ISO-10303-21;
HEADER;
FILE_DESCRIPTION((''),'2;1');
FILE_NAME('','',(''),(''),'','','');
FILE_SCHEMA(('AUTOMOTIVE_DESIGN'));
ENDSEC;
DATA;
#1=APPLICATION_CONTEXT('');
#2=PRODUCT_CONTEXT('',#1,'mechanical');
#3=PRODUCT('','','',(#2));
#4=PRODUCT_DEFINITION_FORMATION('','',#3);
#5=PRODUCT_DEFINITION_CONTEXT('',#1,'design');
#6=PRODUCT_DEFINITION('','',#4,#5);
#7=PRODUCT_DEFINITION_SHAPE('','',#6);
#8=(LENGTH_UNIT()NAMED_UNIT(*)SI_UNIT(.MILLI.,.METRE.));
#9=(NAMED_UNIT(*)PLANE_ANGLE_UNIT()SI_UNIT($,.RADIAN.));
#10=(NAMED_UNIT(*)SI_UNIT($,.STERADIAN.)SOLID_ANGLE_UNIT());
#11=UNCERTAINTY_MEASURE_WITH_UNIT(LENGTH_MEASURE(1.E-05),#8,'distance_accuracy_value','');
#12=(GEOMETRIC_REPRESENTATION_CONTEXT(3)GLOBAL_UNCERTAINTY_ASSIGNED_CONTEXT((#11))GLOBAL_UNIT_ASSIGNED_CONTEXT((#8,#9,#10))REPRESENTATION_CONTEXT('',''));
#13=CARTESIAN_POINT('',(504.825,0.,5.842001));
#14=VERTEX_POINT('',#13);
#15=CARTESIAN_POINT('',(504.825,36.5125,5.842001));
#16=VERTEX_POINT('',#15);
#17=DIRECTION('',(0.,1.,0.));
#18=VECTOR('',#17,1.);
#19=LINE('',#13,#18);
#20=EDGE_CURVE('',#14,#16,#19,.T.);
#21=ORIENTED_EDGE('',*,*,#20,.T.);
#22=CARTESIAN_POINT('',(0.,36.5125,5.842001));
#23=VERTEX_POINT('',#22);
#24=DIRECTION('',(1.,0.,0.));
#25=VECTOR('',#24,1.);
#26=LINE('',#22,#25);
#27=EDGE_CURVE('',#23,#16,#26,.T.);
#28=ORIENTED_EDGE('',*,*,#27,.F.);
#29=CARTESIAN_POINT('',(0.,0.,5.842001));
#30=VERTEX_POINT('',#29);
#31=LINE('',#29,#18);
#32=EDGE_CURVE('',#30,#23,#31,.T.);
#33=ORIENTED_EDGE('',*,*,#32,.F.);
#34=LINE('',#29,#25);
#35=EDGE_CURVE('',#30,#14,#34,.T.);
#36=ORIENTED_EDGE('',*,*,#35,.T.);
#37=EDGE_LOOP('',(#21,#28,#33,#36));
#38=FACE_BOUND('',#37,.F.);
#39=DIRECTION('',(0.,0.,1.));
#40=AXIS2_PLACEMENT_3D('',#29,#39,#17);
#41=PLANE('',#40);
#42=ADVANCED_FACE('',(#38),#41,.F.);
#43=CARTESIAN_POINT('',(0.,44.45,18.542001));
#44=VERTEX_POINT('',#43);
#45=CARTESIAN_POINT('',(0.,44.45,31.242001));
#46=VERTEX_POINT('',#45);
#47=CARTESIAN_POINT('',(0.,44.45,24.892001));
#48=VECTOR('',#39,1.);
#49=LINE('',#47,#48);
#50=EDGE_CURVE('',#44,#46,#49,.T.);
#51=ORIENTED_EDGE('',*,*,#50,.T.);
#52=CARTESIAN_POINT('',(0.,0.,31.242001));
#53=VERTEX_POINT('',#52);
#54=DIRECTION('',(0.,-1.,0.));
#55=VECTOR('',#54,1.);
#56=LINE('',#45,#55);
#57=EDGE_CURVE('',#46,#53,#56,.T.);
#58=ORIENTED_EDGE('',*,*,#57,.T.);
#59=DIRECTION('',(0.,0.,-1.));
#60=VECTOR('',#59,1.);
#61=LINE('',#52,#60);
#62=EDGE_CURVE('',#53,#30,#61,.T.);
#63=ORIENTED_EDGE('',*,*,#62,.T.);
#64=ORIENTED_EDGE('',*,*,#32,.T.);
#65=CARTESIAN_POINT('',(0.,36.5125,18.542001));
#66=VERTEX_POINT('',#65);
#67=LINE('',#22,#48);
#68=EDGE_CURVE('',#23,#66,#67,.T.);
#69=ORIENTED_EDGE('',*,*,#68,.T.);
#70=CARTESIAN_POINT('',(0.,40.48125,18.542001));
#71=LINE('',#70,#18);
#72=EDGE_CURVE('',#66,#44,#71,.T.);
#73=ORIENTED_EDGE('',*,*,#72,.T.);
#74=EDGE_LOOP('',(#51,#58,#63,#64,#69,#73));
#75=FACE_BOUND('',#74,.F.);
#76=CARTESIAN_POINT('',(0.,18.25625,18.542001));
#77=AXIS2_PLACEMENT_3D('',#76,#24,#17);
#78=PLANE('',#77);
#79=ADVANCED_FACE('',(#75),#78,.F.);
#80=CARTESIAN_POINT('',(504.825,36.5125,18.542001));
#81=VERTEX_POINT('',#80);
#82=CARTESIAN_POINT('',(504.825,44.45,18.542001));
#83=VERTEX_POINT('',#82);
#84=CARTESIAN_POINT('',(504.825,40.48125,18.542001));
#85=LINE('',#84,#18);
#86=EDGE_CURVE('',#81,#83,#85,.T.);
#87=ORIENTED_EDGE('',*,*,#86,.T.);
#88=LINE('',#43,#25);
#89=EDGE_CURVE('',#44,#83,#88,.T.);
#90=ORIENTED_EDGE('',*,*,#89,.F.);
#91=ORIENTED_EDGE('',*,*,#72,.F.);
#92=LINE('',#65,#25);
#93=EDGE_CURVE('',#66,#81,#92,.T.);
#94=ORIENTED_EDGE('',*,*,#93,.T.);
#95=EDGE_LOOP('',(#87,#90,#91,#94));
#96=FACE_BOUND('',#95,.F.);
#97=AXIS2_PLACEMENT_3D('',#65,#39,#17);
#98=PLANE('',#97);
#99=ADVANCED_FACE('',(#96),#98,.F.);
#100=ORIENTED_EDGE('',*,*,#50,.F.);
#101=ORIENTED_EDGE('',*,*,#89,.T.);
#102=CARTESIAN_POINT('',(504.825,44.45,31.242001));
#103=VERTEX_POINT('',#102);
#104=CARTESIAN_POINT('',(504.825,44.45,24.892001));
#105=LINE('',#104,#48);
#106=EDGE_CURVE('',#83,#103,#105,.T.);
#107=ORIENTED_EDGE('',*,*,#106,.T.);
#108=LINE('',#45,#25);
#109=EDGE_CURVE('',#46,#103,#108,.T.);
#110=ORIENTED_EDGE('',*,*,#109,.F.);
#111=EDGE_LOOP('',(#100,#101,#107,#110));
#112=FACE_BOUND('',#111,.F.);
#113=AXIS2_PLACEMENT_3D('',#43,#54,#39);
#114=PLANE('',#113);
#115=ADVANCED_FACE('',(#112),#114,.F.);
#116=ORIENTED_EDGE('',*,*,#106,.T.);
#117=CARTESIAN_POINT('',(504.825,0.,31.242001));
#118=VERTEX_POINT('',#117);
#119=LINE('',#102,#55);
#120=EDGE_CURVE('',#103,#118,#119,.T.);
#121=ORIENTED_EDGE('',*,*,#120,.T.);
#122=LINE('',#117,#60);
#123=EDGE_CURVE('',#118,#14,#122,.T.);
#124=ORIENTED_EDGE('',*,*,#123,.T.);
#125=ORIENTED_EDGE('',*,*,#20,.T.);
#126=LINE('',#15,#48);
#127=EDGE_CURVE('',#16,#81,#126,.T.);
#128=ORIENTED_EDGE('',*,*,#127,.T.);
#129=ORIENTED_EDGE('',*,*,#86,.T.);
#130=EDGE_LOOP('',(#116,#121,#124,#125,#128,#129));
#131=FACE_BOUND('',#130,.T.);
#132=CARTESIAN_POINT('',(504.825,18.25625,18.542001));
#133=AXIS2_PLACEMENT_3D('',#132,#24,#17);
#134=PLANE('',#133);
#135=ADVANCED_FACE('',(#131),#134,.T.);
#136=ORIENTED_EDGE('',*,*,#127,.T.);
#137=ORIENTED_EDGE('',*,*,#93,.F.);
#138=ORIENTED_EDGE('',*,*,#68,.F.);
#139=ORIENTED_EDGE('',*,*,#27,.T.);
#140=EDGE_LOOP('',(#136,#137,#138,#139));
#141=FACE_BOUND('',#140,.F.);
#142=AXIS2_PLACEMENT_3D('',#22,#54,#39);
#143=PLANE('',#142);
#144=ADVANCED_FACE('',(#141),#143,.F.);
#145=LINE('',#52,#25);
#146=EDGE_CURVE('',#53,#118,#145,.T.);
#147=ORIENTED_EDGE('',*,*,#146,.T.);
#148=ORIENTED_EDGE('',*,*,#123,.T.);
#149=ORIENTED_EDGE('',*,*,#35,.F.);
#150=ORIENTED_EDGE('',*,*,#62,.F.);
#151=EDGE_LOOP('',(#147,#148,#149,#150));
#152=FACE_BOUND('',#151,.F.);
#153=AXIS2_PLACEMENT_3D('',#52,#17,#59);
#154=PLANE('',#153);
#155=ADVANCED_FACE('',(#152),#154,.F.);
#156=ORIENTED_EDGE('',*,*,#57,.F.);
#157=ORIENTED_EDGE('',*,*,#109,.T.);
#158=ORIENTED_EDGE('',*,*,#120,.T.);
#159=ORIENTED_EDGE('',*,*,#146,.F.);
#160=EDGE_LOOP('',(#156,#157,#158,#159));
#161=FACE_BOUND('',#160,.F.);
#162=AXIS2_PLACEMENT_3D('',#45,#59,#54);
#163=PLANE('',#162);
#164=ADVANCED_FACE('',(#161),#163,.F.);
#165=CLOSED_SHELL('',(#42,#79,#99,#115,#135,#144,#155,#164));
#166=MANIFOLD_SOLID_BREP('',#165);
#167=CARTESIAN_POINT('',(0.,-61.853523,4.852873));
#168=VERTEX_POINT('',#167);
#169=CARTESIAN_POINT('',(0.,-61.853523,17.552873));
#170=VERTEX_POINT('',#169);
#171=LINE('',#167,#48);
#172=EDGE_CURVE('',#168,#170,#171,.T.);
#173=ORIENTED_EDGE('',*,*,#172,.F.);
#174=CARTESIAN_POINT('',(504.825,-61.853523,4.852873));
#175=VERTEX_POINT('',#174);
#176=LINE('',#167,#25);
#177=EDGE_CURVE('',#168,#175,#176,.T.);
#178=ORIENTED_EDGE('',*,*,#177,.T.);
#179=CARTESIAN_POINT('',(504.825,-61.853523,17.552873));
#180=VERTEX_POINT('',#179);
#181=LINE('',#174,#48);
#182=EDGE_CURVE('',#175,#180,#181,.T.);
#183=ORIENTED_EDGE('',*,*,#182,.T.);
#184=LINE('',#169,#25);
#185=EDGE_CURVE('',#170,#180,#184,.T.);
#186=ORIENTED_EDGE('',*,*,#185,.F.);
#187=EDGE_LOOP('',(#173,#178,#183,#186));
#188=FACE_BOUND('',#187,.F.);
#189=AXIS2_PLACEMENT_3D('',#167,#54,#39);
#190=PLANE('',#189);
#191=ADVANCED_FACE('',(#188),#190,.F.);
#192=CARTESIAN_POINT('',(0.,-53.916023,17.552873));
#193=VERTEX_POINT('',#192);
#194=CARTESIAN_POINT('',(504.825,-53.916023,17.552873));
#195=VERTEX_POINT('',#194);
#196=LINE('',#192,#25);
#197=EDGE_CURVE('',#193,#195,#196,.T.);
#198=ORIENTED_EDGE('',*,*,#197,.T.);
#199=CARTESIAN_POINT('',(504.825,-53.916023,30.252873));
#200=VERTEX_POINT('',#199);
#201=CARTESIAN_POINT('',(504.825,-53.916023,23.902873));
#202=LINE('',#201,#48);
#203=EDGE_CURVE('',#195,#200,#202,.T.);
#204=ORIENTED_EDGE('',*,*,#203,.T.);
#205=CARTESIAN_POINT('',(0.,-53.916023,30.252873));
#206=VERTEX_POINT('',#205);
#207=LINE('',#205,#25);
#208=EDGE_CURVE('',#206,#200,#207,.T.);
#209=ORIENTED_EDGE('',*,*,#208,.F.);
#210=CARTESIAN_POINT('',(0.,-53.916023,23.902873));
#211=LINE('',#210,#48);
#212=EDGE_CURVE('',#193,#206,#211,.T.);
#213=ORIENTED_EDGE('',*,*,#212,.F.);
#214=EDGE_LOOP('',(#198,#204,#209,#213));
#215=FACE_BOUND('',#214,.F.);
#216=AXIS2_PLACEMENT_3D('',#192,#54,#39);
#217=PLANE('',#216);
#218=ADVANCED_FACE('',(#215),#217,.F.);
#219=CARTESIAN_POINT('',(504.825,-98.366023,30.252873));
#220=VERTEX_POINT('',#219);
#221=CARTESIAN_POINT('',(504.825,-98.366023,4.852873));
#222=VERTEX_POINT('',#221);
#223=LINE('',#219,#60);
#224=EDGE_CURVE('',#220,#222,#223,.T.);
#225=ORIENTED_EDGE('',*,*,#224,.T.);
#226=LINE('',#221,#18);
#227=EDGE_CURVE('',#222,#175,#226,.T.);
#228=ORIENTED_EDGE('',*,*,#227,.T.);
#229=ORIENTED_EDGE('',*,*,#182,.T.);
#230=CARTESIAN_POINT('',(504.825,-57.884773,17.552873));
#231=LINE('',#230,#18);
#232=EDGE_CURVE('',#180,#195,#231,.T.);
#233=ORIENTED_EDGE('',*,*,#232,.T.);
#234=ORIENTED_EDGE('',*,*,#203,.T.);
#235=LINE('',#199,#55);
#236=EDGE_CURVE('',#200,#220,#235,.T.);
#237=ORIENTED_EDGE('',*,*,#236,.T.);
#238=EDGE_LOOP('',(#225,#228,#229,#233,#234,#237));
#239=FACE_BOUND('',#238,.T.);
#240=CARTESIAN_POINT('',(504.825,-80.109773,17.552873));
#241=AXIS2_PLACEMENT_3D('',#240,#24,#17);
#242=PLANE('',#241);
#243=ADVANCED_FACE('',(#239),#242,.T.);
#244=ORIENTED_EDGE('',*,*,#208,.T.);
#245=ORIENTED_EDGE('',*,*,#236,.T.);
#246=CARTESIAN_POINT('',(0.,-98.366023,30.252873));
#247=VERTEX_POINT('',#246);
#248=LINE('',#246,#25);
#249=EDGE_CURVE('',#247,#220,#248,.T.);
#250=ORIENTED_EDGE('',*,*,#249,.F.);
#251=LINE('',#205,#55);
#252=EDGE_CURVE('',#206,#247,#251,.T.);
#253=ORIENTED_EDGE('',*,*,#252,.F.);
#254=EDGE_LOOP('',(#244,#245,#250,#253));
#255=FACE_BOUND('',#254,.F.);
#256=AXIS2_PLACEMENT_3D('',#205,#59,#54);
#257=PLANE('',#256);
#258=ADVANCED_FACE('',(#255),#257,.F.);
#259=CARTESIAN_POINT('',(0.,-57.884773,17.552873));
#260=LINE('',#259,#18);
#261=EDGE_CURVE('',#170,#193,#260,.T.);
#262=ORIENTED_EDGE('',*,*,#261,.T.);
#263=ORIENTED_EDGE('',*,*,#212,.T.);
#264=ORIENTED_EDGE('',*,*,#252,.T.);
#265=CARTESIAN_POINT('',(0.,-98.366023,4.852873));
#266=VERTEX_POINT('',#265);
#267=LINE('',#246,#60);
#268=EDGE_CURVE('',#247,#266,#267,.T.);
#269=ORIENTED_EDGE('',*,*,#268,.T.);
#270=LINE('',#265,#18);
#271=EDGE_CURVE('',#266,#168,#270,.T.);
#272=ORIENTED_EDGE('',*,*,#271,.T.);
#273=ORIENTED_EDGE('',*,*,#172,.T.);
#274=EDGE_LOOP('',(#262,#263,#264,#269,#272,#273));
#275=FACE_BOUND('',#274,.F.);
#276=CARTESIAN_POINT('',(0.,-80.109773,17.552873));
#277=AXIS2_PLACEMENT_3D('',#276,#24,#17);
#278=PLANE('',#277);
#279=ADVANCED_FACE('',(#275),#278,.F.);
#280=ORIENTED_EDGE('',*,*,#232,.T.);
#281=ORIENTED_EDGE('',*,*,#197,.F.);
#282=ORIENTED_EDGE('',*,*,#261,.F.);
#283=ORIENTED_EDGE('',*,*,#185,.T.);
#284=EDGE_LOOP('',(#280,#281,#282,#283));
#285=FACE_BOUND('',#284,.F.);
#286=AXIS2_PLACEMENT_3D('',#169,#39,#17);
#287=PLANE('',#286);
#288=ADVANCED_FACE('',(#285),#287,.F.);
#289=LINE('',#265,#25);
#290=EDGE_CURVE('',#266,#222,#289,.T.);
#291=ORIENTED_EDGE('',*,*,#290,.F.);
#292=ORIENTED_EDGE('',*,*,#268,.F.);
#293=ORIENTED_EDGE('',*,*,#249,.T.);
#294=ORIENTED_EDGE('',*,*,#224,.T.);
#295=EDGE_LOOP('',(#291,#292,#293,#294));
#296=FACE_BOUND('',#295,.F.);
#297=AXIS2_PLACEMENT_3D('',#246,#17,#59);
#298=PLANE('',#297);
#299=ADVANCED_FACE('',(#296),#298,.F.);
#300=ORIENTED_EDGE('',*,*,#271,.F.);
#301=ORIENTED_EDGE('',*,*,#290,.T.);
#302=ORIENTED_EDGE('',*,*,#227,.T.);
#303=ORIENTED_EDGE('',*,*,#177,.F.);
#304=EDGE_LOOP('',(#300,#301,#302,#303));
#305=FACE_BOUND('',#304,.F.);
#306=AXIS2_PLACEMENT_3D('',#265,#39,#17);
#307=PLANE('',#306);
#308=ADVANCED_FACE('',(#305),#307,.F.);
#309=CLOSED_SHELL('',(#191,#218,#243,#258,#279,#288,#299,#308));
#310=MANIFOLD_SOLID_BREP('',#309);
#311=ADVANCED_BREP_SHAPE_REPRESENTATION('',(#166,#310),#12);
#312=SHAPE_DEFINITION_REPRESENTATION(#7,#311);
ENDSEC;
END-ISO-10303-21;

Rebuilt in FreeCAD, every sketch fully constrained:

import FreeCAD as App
import Part
import Sketcher
from FreeCAD import Vector
Q = App.Units.Quantity

doc = App.newDocument("Part")
body = doc.addObject("PartDesign::Body", "Body")
body.AllowCompound = True

# Sketch on YZ plane
sketch1 = body.newObject("Sketcher::SketchObject", "Sketch")
sketch1.AttachmentSupport = (doc.getObject("YZ_Plane"), [""])
sketch1.MapMode = "FlatFace"
sketch1.addGeometry([
    Part.LineSegment(Vector(-98, 30, 0), Vector(-98, 5, 0)),  # 0
    Part.LineSegment(Vector(-98, 5, 0), Vector(-62, 5, 0)),  # 1
    Part.LineSegment(Vector(-62, 5, 0), Vector(-62, 18, 0)),  # 2
    Part.LineSegment(Vector(-62, 18, 0), Vector(-54, 18, 0)),  # 3
    Part.LineSegment(Vector(-54, 18, 0), Vector(-54, 30, 0)),  # 4
    Part.LineSegment(Vector(-54, 30, 0), Vector(-98, 30, 0)),  # 5
    Part.LineSegment(Vector(0, 31, 0), Vector(0, 6, 0)),  # 6
    Part.LineSegment(Vector(0, 6, 0), Vector(37, 6, 0)),  # 7
    Part.LineSegment(Vector(37, 6, 0), Vector(37, 19, 0)),  # 8
    Part.LineSegment(Vector(37, 19, 0), Vector(44, 19, 0)),  # 9
    Part.LineSegment(Vector(44, 19, 0), Vector(44, 31, 0)),  # 10
    Part.LineSegment(Vector(44, 31, 0), Vector(0, 31, 0)),  # 11
], False)
sketch1.addConstraint([
    Sketcher.Constraint("Coincident", 0, 2, 1, 1),
    Sketcher.Constraint("Coincident", 1, 2, 2, 1),
    Sketcher.Constraint("Coincident", 2, 2, 3, 1),
    Sketcher.Constraint("Coincident", 3, 2, 4, 1),
    Sketcher.Constraint("Coincident", 4, 2, 5, 1),
    Sketcher.Constraint("Coincident", 5, 2, 0, 1),
    Sketcher.Constraint("Coincident", 6, 2, 7, 1),
    Sketcher.Constraint("Coincident", 7, 2, 8, 1),
    Sketcher.Constraint("Coincident", 8, 2, 9, 1),
    Sketcher.Constraint("Coincident", 9, 2, 10, 1),
    Sketcher.Constraint("Coincident", 10, 2, 11, 1),
    Sketcher.Constraint("Coincident", 11, 2, 6, 1),
    Sketcher.Constraint("Vertical", 0),
    Sketcher.Constraint("Horizontal", 1),
    Sketcher.Constraint("Vertical", 2),
    Sketcher.Constraint("Horizontal", 3),
    Sketcher.Constraint("Vertical", 4),
    Sketcher.Constraint("Horizontal", 5),
    Sketcher.Constraint("Vertical", 6),
    Sketcher.Constraint("Horizontal", 7),
    Sketcher.Constraint("Vertical", 8),
    Sketcher.Constraint("Horizontal", 9),
    Sketcher.Constraint("Vertical", 10),
    Sketcher.Constraint("Horizontal", 11),
    Sketcher.Constraint("PointOnObject", 6, 2, -2),
    Sketcher.Constraint("Equal", 1, 7),
    Sketcher.Constraint("Equal", 3, 9),
    Sketcher.Constraint("Equal", 2, 4),
    Sketcher.Constraint("Equal", 0, 6),
    Sketcher.Constraint("Equal", 4, 8),
    Sketcher.Constraint("DistanceY", 0, 2, 0, 1, Q("1 in")),
    Sketcher.Constraint("DistanceX", 5, 2, 5, 1, Q("1.75 in")),
    Sketcher.Constraint("DistanceX", 1, 1, 1, 2, Q("1.4375 in")),
    Sketcher.Constraint("DistanceY", -1, 1, 6, 2, Q("0.23 in")),
    Sketcher.Constraint("DistanceY", 1, 2, 6, 2, Q("0.989128 mm")),
    Sketcher.Constraint("DistanceX", 0, 2, -1, 1, Q("98.366023 mm")),
])
pad1 = body.newObject("PartDesign::Pad", "Pad")
pad1.Profile = sketch1
pad1.Length = Q("19.875 in")

doc.recompute()
